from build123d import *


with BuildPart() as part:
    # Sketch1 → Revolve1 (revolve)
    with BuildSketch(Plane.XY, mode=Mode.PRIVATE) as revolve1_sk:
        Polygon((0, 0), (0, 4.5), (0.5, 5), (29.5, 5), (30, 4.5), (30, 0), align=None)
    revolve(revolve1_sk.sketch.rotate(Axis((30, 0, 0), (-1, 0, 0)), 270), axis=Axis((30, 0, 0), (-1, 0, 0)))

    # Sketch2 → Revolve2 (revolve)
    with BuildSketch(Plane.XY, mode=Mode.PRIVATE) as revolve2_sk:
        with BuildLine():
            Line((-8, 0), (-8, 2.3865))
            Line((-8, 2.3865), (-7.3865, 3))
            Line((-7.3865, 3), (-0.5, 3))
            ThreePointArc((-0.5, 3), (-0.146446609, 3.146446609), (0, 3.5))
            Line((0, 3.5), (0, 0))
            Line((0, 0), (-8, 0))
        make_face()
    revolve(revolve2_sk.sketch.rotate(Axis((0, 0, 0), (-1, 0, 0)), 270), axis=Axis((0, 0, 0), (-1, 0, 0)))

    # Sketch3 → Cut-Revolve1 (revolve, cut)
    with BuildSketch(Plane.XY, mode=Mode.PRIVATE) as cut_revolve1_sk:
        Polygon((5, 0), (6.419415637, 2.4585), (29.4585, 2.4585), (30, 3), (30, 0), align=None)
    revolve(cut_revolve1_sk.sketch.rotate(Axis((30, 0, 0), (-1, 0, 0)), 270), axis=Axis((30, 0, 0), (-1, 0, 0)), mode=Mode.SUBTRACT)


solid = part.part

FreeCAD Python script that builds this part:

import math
import FreeCAD as App
import Part
import Sketcher

V = App.Vector
Q = App.Units.Quantity

doc = App.newDocument("Part")
body = doc.addObject("PartDesign::Body", "Body")

sketch1 = doc.addObject("Sketcher::SketchObject", "Sketch")
body.addObject(sketch1)
sketch1.AttachmentSupport = (doc.XY_Plane, [""])
sketch1.MapMode = "FlatFace"
sketch1.addGeometry(Part.LineSegment(V(0, 4.5, 0), V(0, 0, 0)), False)
sketch1.addGeometry(Part.LineSegment(V(0, 0, 0), V(30, 0, 0)), False)
sketch1.addGeometry(Part.LineSegment(V(30, 0, 0), V(30, 4.5, 0)), False)
sketch1.addGeometry(Part.LineSegment(V(30, 4.5, 0), V(29.5, 5, 0)), False)
sketch1.addGeometry(Part.LineSegment(V(29.5, 5, 0), V(0.5, 5, 0)), False)
sketch1.addGeometry(Part.LineSegment(V(0.5, 5, 0), V(0, 4.5, 0)), False)
sketch1.addConstraint(Sketcher.Constraint("Coincident", 0, 2, 1, 1))
sketch1.addConstraint(Sketcher.Constraint("Coincident", 1, 2, 2, 1))
sketch1.addConstraint(Sketcher.Constraint("Coincident", 2, 2, 3, 1))
sketch1.addConstraint(Sketcher.Constraint("Coincident", 3, 2, 4, 1))
sketch1.addConstraint(Sketcher.Constraint("Coincident", 4, 2, 5, 1))
sketch1.addConstraint(Sketcher.Constraint("Coincident", 5, 2, 0, 1))
sketch1.addConstraint(Sketcher.Constraint("Vertical", 0))
sketch1.addConstraint(Sketcher.Constraint("Horizontal", 1))
sketch1.addConstraint(Sketcher.Constraint("Vertical", 2))
sketch1.addConstraint(Sketcher.Constraint("Horizontal", 4))
sketch1.addConstraint(Sketcher.Constraint("Coincident", 0, 2, -1, 1))
sketch1.addConstraint(Sketcher.Constraint("Perpendicular", 3, 5))
sketch1.addConstraint(Sketcher.Constraint("Horizontal", 2, 2, 5, 2))
sketch1.addConstraint(Sketcher.Constraint("Equal", 3, 5))
sketch1.addConstraint(Sketcher.Constraint("DistanceX", 1, 1, 1, 2, Q("30 mm")))
sketch1.addConstraint(Sketcher.Constraint("DistanceX", 4, 2, 4, 1, Q("29 mm")))
sketch1.addConstraint(Sketcher.Constraint("DistanceY", 0, 2, 0, 1, Q("4.5 mm")))
revolution = doc.addObject("PartDesign::Revolution", "Revolution")
body.addObject(revolution)
revolution.Profile = sketch1
revolution.ReferenceAxis = (sketch1, ["H_Axis"])
revolution.Angle = 360

sketch2 = doc.addObject("Sketcher::SketchObject", "Sketch001")
body.addObject(sketch2)
sketch2.AttachmentSupport = (doc.XY_Plane, [""])
sketch2.MapMode = "FlatFace"
sketch2.addGeometry(Part.LineSegment(V(-8, 2.39, 0), V(-8, 0, 0)), False)
sketch2.addGeometry(Part.LineSegment(V(-8, 0, 0), V(0, 0, 0)), False)
sketch2.addGeometry(Part.LineSegment(V(0, 0, 0), V(0, 3.5, 0)), False)
sketch2.addGeometry(Part.ArcOfCircle(Part.Circle(V(-0.5, 3.5, 0), V(0, 0, 1), 0.5), math.radians(-90), math.radians(0)), False)
sketch2.addGeometry(Part.LineSegment(V(-0.5, 3, 0), V(-7.39, 3, 0)), False)
sketch2.addGeometry(Part.LineSegment(V(-7.39, 3, 0), V(-8, 2.39, 0)), False)
sketch2.addConstraint(Sketcher.Constraint("Coincident", 0, 2, 1, 1))
sketch2.addConstraint(Sketcher.Constraint("Coincident", 1, 2, 2, 1))
sketch2.addConstraint(Sketcher.Constraint("Tangent", 2, 2, 3, 2))
sketch2.addConstraint(Sketcher.Constraint("Tangent", 3, 1, 4, 1))
sketch2.addConstraint(Sketcher.Constraint("Coincident", 4, 2, 5, 1))
sketch2.addConstraint(Sketcher.Constraint("Coincident", 5, 2, 0, 1))
sketch2.addConstraint(Sketcher.Constraint("Vertical", 0))
sketch2.addConstraint(Sketcher.Constraint("Horizontal", 1))
sketch2.addConstraint(Sketcher.Constraint("Vertical", 2))
sketch2.addConstraint(Sketcher.Constraint("Horizontal", 4))
sketch2.addConstraint(Sketcher.Constraint("Coincident", 1, 2, -1, 1))
sketch2.addConstraint(Sketcher.Constraint("Radius", 3, Q("0.5 mm")))
sketch2.addConstraint(Sketcher.Constraint("DistanceX", 1, 1, 1, 2, Q("8 mm")))
sketch2.addConstraint(Sketcher.Constraint("Angle", 5, Q("-135 deg")))
sketch2.addConstraint(Sketcher.Constraint("DistanceY", 2, 1, 2, 2, Q("3.5 mm")))
sketch2.addConstraint(Sketcher.Constraint("DistanceX", 4, 2, 4, 1, Q("6.8865 mm")))
revolution2 = doc.addObject("PartDesign::Revolution", "Revolution001")
body.addObject(revolution2)
revolution2.Profile = sketch2
revolution2.ReferenceAxis = (sketch2, ["H_Axis"])
revolution2.Angle = 360

sketch3 = doc.addObject("Sketcher::SketchObject", "Sketch002")
body.addObject(sketch3)
sketch3.AttachmentSupport = (doc.XY_Plane, [""])
sketch3.MapMode = "FlatFace"
sketch3.addGeometry(Part.LineSegment(V(6.4, 2.5, 0), V(5, 0, 0)), False)
sketch3.addGeometry(Part.LineSegment(V(5, 0, 0), V(30, 0, 0)), False)
sketch3.addGeometry(Part.LineSegment(V(30, 0, 0), V(30, 3, 0)), False)
sketch3.addGeometry(Part.LineSegment(V(30, 3, 0), V(29.5, 2.5, 0)), False)
sketch3.addGeometry(Part.LineSegment(V(29.5, 2.5, 0), V(6.4, 2.5, 0)), False)
sketch3.addConstraint(Sketcher.Constraint("Coincident", 0, 2, 1, 1))
sketch3.addConstraint(Sketcher.Constraint("Coincident", 1, 2, 2, 1))
sketch3.addConstraint(Sketcher.Constraint("Coincident", 2, 2, 3, 1))
sketch3.addConstraint(Sketcher.Constraint("Coincident", 3, 2, 4, 1))
sketch3.addConstraint(Sketcher.Constraint("Coincident", 4, 2, 0, 1))
sketch3.addConstraint(Sketcher.Constraint("Horizontal", 1))
sketch3.addConstraint(Sketcher.Constraint("Vertical", 2))
sketch3.addConstraint(Sketcher.Constraint("Horizontal", 4))
sketch3.addConstraint(Sketcher.Constraint("PointOnObject", 0, 2, -1))
sketch3.addConstraint(Sketcher.Constraint("DistanceX", 1, 1, 1, 2, Q("25 mm")))
sketch3.addConstraint(Sketcher.Constraint("DistanceY", 2, 1, 2, 2, Q("3 mm")))
sketch3.addConstraint(Sketcher.Constraint("Angle", 0, Q("-120 deg")))
sketch3.addConstraint(Sketcher.Constraint("Angle", 3, Q("-135 deg")))
sketch3.addConstraint(Sketcher.Constraint("DistanceX", -1, 1, 0, 2, Q("5 mm")))
sketch3.addConstraint(Sketcher.Constraint("DistanceX", -1, 1, 3, 2, Q("29.4585 mm")))
groove = doc.addObject("PartDesign::Groove", "Groove")
body.addObject(groove)
groove.Profile = sketch3
groove.ReferenceAxis = (sketch3, ["H_Axis"])
groove.Angle = 360

doc.recompute()
